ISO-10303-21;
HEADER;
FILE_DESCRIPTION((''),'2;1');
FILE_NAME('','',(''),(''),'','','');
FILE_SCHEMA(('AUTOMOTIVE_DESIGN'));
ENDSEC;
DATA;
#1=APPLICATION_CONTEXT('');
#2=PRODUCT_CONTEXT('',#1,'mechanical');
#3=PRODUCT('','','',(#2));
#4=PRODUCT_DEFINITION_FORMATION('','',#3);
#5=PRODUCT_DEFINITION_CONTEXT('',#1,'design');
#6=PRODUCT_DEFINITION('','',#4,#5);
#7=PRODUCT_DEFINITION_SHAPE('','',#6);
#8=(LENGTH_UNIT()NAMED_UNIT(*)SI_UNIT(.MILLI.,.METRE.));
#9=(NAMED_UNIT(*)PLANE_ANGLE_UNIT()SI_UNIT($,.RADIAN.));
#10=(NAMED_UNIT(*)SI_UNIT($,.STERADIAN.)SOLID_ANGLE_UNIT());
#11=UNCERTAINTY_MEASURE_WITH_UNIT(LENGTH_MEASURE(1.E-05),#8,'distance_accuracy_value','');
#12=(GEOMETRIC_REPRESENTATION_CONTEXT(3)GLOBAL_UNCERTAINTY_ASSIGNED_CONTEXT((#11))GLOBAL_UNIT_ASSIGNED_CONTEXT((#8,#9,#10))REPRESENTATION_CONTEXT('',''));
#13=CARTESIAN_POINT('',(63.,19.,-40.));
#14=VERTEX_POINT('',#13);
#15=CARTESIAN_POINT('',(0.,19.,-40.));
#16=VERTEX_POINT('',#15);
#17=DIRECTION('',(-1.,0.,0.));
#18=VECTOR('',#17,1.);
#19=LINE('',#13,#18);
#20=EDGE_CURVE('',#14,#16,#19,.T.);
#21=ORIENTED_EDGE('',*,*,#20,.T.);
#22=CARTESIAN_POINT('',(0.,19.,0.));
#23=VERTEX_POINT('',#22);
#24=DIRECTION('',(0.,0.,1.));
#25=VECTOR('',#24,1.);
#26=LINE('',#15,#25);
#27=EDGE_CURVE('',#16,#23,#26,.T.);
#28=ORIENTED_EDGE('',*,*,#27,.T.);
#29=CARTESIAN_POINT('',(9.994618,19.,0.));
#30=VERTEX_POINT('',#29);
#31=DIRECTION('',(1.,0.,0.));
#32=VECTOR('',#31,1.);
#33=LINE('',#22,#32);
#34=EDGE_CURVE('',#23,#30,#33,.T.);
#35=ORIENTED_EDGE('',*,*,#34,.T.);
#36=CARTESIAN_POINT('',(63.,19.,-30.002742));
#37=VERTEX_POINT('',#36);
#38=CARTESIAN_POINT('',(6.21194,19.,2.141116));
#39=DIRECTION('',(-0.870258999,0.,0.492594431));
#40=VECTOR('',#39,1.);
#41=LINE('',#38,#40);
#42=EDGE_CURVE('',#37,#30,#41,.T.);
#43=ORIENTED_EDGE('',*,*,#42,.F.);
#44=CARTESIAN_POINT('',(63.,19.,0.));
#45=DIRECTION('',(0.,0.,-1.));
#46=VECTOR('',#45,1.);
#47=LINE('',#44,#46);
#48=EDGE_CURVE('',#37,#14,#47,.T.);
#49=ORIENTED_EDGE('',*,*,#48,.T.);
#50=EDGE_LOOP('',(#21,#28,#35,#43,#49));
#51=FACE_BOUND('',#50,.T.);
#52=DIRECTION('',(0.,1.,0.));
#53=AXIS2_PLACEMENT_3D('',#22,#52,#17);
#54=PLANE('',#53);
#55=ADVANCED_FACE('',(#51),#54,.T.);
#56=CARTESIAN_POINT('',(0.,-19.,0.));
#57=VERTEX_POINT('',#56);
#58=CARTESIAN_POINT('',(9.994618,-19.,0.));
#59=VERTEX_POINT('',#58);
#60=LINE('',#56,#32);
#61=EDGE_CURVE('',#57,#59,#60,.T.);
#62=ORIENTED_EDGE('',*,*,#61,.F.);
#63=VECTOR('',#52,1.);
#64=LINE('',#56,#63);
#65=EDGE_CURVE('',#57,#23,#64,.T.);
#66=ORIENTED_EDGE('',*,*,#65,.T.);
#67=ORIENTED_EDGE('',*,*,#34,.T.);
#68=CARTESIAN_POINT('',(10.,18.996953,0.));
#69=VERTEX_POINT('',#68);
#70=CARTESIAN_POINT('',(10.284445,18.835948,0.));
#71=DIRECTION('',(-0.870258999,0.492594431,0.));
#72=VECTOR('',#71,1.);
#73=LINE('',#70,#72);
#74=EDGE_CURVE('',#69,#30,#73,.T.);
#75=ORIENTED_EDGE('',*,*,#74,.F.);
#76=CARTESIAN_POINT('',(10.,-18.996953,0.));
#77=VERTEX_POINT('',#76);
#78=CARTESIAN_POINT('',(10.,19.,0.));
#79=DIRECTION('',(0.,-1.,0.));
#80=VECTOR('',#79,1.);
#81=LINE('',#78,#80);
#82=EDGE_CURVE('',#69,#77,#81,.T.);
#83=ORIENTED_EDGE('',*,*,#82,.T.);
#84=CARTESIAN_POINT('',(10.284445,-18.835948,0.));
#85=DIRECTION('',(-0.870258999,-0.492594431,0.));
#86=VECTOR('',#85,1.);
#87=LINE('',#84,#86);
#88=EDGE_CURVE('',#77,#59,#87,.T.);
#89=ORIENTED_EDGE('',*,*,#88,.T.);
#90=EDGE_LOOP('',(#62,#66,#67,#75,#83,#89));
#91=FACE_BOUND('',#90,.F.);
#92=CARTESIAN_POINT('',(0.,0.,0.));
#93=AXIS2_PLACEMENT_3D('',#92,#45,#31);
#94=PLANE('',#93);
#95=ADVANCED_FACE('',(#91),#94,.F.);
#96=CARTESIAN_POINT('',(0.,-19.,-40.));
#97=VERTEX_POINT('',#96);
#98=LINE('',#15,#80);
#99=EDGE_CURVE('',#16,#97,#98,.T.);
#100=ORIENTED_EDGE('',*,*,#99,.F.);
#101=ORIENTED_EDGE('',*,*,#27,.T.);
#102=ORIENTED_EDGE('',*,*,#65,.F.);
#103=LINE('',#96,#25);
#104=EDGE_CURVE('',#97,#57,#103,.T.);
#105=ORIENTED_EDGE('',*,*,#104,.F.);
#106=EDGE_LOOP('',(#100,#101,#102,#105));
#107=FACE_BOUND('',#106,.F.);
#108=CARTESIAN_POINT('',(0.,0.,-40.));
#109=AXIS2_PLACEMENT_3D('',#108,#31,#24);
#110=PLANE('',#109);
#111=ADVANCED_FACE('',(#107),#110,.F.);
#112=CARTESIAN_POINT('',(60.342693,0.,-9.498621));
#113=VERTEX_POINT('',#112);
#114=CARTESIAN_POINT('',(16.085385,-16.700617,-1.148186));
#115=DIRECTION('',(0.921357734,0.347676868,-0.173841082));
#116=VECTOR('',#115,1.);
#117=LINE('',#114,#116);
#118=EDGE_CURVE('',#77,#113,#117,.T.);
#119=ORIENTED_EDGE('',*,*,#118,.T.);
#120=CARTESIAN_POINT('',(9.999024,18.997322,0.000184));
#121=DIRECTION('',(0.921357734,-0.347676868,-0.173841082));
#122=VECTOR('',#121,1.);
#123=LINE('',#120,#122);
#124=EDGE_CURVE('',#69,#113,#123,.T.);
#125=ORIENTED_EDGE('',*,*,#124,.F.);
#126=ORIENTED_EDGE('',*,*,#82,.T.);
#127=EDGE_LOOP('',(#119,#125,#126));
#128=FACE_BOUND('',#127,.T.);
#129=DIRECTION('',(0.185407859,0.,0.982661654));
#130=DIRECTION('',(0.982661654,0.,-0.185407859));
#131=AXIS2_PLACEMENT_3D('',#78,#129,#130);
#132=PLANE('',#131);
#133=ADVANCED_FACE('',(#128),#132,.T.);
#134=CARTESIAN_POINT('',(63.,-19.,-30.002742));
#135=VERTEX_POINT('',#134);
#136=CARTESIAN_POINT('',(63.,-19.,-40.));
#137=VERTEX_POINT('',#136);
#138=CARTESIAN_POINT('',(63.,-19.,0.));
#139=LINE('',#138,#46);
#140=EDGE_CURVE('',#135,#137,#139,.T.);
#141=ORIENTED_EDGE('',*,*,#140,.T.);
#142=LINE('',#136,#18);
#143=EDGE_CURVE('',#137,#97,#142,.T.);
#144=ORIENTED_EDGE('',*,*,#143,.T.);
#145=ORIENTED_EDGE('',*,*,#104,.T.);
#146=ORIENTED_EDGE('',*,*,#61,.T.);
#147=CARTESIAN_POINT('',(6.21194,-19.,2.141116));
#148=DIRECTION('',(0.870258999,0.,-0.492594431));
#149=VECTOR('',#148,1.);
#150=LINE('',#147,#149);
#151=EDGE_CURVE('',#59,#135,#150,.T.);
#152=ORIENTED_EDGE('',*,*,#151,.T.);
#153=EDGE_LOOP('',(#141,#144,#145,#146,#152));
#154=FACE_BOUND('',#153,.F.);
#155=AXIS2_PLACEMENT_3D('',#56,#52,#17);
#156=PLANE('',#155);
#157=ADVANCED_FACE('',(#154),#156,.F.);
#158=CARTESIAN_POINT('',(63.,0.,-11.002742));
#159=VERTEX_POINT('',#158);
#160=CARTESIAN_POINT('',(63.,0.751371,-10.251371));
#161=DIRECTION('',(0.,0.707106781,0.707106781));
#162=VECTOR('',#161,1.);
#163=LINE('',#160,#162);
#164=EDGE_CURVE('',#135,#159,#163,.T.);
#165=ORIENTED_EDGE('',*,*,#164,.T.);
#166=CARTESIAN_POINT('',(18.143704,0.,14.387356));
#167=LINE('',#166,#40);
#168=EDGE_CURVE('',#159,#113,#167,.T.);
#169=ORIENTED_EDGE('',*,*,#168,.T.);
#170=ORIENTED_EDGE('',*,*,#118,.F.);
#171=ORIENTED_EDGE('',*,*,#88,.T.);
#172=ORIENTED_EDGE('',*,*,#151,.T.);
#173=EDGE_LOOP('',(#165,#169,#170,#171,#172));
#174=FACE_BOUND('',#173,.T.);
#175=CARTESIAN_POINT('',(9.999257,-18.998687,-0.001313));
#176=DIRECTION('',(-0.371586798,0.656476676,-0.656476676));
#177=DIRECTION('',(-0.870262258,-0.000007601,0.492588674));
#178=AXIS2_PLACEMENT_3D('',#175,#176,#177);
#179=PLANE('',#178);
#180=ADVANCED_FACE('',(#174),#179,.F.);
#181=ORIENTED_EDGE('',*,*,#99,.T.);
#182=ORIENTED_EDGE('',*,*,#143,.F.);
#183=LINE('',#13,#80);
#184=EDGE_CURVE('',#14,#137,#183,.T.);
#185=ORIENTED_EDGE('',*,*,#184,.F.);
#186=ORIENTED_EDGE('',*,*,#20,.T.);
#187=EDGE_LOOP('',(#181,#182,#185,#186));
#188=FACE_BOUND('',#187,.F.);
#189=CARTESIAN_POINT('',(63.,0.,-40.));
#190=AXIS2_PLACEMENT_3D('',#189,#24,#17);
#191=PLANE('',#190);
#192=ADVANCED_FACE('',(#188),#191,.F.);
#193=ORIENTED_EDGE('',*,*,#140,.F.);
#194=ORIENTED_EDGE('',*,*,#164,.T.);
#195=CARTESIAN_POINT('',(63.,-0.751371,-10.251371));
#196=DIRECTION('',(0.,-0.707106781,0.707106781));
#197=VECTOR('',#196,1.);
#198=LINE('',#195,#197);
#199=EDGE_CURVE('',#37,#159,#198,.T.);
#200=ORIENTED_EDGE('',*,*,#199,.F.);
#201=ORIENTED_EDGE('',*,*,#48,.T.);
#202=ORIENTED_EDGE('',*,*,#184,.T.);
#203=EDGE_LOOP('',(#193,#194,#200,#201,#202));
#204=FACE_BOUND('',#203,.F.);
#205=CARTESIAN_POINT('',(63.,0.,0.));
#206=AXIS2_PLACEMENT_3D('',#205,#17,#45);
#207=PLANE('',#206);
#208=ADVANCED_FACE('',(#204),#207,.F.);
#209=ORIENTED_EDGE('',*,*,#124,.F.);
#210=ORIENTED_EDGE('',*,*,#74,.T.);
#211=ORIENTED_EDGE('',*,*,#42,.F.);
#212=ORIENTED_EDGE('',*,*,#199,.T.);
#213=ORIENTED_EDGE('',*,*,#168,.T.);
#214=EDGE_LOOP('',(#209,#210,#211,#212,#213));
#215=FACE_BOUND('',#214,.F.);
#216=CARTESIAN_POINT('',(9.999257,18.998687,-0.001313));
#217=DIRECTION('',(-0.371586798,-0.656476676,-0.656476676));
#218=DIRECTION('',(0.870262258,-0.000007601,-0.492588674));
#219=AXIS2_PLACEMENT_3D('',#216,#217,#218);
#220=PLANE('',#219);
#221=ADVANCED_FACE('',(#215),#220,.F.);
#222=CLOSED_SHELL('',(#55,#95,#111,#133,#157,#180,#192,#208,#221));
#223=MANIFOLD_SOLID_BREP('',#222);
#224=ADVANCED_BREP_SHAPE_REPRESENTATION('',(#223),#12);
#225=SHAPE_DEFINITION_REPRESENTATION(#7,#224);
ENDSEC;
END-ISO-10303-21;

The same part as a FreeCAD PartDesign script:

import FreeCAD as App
import Part
import Sketcher

V = App.Vector


def add_polygon(sketch, points):
    """Adds a closed chain of lines whose ends are joined by coincident constraints."""
    first, n = sketch.GeometryCount, len(points)
    for a, b in zip(points, points[1:] + points[:1]):
        sketch.addGeometry(Part.LineSegment(App.Vector(*a, 0), App.Vector(*b, 0)), False)
    for i in range(n):
        sketch.addConstraint(Sketcher.Constraint("Coincident", first + i, 2, first + (i + 1) % n, 1))

doc = App.newDocument("Part")
params = doc.addObject("Spreadsheet::Sheet", "Params")
for row, (alias, value) in enumerate([
    ("sketch1_width", "63 mm"),
    ("sketch1_height", "40 mm"),
    ("pad1_length", "38 mm"),
    ("sketch2_height", "10 mm"),
    ("sketch2_width", "53 mm"),
    ("pocket1_length", "40 mm"),
    ("pocket2_length", "40 mm"),
], start=1):
    params.set(f"A{row}", alias)
    params.set(f"B{row}", "=" + value)
    params.setAlias(f"B{row}", alias)

body = doc.addObject("PartDesign::Body", "Body")

# Sketch on XZ plane
sketch1 = doc.addObject("Sketcher::SketchObject", "Sketch")
body.addObject(sketch1)
sketch1.AttachmentSupport = (doc.XZ_Plane, [""])
sketch1.MapMode = "FlatFace"
add_polygon(sketch1, [(0, -40), (0, 0), (63, 0), (63, -40)])  # lines 0-3
sketch1.addConstraint(Sketcher.Constraint("Vertical", 0))
sketch1.addConstraint(Sketcher.Constraint("Horizontal", 1))
sketch1.addConstraint(Sketcher.Constraint("Vertical", 2))
sketch1.addConstraint(Sketcher.Constraint("Horizontal", 3))
sketch1.addConstraint(Sketcher.Constraint("Coincident", 0, 2, -1, 1))
sketch1.addConstraint(Sketcher.Constraint("DistanceX", 1, 1, 1, 2, 63.0))
sketch1.addConstraint(Sketcher.Constraint("DistanceY", 0, 1, 0, 2, 40.0))
sketch1.setExpression("Constraints[9]", "Params.sketch1_width")
sketch1.setExpression("Constraints[10]", "Params.sketch1_height")
pad1 = doc.addObject("PartDesign::Pad", "Pad")
body.addObject(pad1)
pad1.Profile = sketch1
pad1.setExpression("Length", "Params.pad1_length")
pad1.Midplane = True

# Sketch on XZ plane
sketch2 = doc.addObject("Sketcher::SketchObject", "Sketch001")
body.addObject(sketch2)
sketch2.AttachmentSupport = (doc.XZ_Plane, [""])
sketch2.MapMode = "FlatFace"
sketch2.AttachmentOffset = App.Placement(V(0, 0, -19), App.Rotation())
add_polygon(sketch2, [(63, -10), (10, 0), (63, 0)])  # lines 0-2
sketch2.addConstraint(Sketcher.Constraint("Horizontal", 1))
sketch2.addConstraint(Sketcher.Constraint("Vertical", 2))
sketch2.addConstraint(Sketcher.Constraint("PointOnObject", 0, 2, -1))
sketch2.addConstraint(Sketcher.Constraint("DistanceY", 2, 2, 2, 1, 10.0))
sketch2.addConstraint(Sketcher.Constraint("DistanceX", -1, 1, 0, 2, 10.0))
sketch2.addConstraint(Sketcher.Constraint("DistanceX", 1, 1, 1, 2, 53.0))
sketch2.setExpression("Constraints[6]", "Params.sketch2_height")
sketch2.setExpression("Constraints[8]", "Params.sketch2_width")
pocket1 = doc.addObject("PartDesign::Pocket", "Pocket")
body.addObject(pocket1)
pocket1.Profile = sketch2
pocket1.setExpression("Length", "Params.pocket1_length")
pocket1.Reversed = True

# Sketch on an angled plane
sketch3 = doc.addObject("Sketcher::SketchObject", "Sketch002")
body.addObject(sketch3)
sketch3.Placement = App.Placement(V(10, 19, 0), App.Rotation(V(0.870262258, -0.000007601, -0.492588674), V(0.323367985, -0.754346322, 0.571309699), V(-0.371586798, -0.656476676, -0.656476676), "ZXY"))
add_polygon(sketch3, [(-15, 29), (-15, -12), (94, -12), (94, 29)])  # lines 0-3
sketch3.addConstraint(Sketcher.Constraint("Vertical", 0))
sketch3.addConstraint(Sketcher.Constraint("Horizontal", 1))
sketch3.addConstraint(Sketcher.Constraint("Vertical", 2))
sketch3.addConstraint(Sketcher.Constraint("Horizontal", 3))
sketch3.addConstraint(Sketcher.Constraint("DistanceX", 1, 1, 1, 2, 108.8713))
sketch3.addConstraint(Sketcher.Constraint("DistanceY", 0, 2, 0, 1, 41.1384))
sketch3.addConstraint(Sketcher.Constraint("DistanceX", -1, 1, 1, 2, 93.717))
sketch3.addConstraint(Sketcher.Constraint("DistanceY", 0, 2, -1, 1, 12.3218))
pocket2 = doc.addObject("PartDesign::Pocket", "Pocket001")
body.addObject(pocket2)
pocket2.Profile = sketch3
pocket2.setExpression("Length", "Params.pocket2_length")
doc.recompute()

mirrored = doc.addObject("PartDesign::Mirrored", "Mirrored")
body.addObject(mirrored)
mirrored.Originals = [pocket2]
mirrored.MirrorPlane = (doc.XZ_Plane, [""])
body.Tip = mirrored

doc.recompute()
